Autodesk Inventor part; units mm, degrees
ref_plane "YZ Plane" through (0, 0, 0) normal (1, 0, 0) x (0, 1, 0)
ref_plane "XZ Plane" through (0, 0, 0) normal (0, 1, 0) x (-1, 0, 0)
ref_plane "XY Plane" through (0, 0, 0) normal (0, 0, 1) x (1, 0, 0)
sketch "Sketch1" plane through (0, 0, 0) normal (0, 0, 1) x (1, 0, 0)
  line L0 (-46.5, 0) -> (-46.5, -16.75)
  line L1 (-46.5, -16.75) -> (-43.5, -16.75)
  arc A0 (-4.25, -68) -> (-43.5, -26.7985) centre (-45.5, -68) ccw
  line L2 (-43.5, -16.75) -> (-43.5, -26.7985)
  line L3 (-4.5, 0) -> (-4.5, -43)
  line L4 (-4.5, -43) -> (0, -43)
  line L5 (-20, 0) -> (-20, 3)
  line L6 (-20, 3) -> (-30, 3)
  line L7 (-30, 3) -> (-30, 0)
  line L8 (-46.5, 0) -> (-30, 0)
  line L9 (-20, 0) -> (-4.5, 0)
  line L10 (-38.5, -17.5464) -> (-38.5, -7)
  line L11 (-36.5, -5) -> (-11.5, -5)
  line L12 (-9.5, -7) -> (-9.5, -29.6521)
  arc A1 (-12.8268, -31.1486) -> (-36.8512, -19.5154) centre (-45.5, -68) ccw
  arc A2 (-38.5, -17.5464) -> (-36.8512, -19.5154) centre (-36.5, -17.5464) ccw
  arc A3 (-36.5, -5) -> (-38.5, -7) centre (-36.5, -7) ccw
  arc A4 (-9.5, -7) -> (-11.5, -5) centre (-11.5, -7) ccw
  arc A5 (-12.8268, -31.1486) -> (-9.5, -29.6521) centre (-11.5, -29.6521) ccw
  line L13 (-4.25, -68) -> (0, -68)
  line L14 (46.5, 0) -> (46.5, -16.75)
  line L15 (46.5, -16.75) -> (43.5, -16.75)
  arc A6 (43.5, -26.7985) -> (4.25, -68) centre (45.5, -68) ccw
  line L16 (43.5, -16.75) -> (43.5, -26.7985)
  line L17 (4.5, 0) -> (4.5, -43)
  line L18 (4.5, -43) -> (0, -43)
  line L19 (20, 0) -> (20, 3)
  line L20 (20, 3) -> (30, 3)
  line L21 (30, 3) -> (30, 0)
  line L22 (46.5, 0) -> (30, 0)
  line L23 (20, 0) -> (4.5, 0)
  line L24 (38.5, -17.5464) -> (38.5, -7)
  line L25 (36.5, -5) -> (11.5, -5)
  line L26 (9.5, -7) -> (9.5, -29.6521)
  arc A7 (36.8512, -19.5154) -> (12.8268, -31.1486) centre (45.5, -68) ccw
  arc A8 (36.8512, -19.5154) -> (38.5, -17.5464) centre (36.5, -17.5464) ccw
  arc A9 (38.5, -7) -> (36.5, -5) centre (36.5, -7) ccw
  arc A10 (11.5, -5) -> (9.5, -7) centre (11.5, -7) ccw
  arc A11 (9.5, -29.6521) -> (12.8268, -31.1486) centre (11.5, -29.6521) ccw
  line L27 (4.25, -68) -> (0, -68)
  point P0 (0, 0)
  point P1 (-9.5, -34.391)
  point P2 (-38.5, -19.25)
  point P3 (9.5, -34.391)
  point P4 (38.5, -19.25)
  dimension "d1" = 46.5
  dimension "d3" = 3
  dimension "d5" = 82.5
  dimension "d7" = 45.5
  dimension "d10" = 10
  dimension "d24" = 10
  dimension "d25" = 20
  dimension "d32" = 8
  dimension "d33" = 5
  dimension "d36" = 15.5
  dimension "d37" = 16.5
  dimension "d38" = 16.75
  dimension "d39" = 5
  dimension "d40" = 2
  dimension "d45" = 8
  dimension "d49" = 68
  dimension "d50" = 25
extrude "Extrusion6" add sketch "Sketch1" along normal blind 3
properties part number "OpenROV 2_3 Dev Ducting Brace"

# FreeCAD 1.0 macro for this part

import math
import FreeCAD as App
import Part
import Sketcher

V = App.Vector

doc = App.newDocument("Part")
body = doc.addObject("PartDesign::Body", "Body")

sketch1 = body.newObject("Sketcher::SketchObject", "Sketch")
sketch1.AttachmentSupport = (doc.getObject("XY_Plane"), [""])
sketch1.MapMode = "FlatFace"
sketch1.addGeometry([
    Part.LineSegment(V(-30, 0, 0), V(-46.5, 0, 0)),
    Part.LineSegment(V(-46.5, 0, 0), V(-46.5, -16.8, 0)),
    Part.LineSegment(V(-46.5, -16.8, 0), V(-43.5, -16.8, 0)),
    Part.LineSegment(V(-43.5, -16.8, 0), V(-43.5, -26.8, 0)),
    Part.ArcOfCircle(Part.Circle(V(-45.5, -68, 0), V(0, 0, 1), 41.2), math.radians(0), math.radians(87)),
    Part.LineSegment(V(-4.2, -68, 0), V(4.2, -68, 0)),
    Part.ArcOfCircle(Part.Circle(V(45.5, -68, 0), V(0, 0, 1), 41.3), math.radians(93), math.radians(180)),
    Part.LineSegment(V(43.5, -26.8, 0), V(43.5, -16.8, 0)),
    Part.LineSegment(V(43.5, -16.8, 0), V(46.5, -16.8, 0)),
    Part.LineSegment(V(46.5, -16.8, 0), V(46.5, 0, 0)),
    Part.LineSegment(V(46.5, 0, 0), V(30, 0, 0)),
    Part.LineSegment(V(30, 0, 0), V(30, 3, 0)),
    Part.LineSegment(V(30, 3, 0), V(20, 3, 0)),
    Part.LineSegment(V(20, 3, 0), V(20, 0, 0)),
    Part.LineSegment(V(20, 0, 0), V(4.5, 0, 0)),
    Part.LineSegment(V(4.5, 0, 0), V(4.5, -43, 0)),
    Part.LineSegment(V(4.5, -43, 0), V(-4.5, -43, 0)),
    Part.LineSegment(V(-4.5, -43, 0), V(-4.5, 0, 0)),
    Part.LineSegment(V(-4.5, 0, 0), V(-20, 0, 0)),
    Part.LineSegment(V(-20, 0, 0), V(-20, 3, 0)),
    Part.LineSegment(V(-20, 3, 0), V(-30, 3, 0)),
    Part.LineSegment(V(-30, 3, 0), V(-30, 0, 0)),
    Part.ArcOfCircle(Part.Circle(V(-36.5, -17.5, 0), V(0, 0, 1), 2), math.radians(180), math.radians(260)),
    Part.LineSegment(V(-38.5, -17.5, 0), V(-38.5, -7, 0)),
    Part.ArcOfCircle(Part.Circle(V(-36.5, -7, 0), V(0, 0, 1), 2), math.radians(90), math.radians(180)),
    Part.LineSegment(V(-36.5, -5, 0), V(-11.5, -5, 0)),
    Part.ArcOfCircle(Part.Circle(V(-11.5, -7, 0), V(0, 0, 1), 2), math.radians(0), math.radians(90)),
    Part.LineSegment(V(-9.5, -7, 0), V(-9.5, -29.7, 0)),
    Part.ArcOfCircle(Part.Circle(V(-11.5, -29.7, 0), V(0, 0, 1), 2), math.radians(-132), math.radians(0)),
    Part.ArcOfCircle(Part.Circle(V(-45.5, -68, 0), V(0, 0, 1), 49.3), math.radians(48), math.radians(80)),
    Part.LineSegment(V(38.5, -7, 0), V(38.5, -17.5, 0)),
    Part.ArcOfCircle(Part.Circle(V(36.5, -17.5, 0), V(0, 0, 1), 2), math.radians(-80), math.radians(0)),
    Part.ArcOfCircle(Part.Circle(V(45.5, -68, 0), V(0, 0, 1), 49.2), math.radians(100), math.radians(132)),
    Part.ArcOfCircle(Part.Circle(V(11.5, -29.7, 0), V(0, 0, 1), 2), math.radians(180), math.radians(312)),
    Part.LineSegment(V(9.5, -29.7, 0), V(9.5, -7, 0)),
    Part.ArcOfCircle(Part.Circle(V(11.5, -7, 0), V(0, 0, 1), 2), math.radians(90), math.radians(180)),
    Part.LineSegment(V(11.5, -5, 0), V(36.5, -5, 0)),
    Part.ArcOfCircle(Part.Circle(V(36.5, -7, 0), V(0, 0, 1), 2), math.radians(0), math.radians(90)),
], False)
sketch1.addConstraint([
    Sketcher.Constraint("Coincident", 0, 2, 1, 1),
    Sketcher.Constraint("Coincident", 1, 2, 2, 1),
    Sketcher.Constraint("Coincident", 2, 2, 3, 1),
    Sketcher.Constraint("Coincident", 3, 2, 4, 2),
    Sketcher.Constraint("Coincident", 4, 1, 5, 1),
    Sketcher.Constraint("Coincident", 5, 2, 6, 2),
    Sketcher.Constraint("Coincident", 6, 1, 7, 1),
    Sketcher.Constraint("Coincident", 7, 2, 8, 1),
    Sketcher.Constraint("Coincident", 8, 2, 9, 1),
    Sketcher.Constraint("Coincident", 9, 2, 10, 1),
    Sketcher.Constraint("Coincident", 10, 2, 11, 1),
    Sketcher.Constraint("Coincident", 11, 2, 12, 1),
    Sketcher.Constraint("Coincident", 12, 2, 13, 1),
    Sketcher.Constraint("Coincident", 13, 2, 14, 1),
    Sketcher.Constraint("Coincident", 14, 2, 15, 1),
    Sketcher.Constraint("Coincident", 15, 2, 16, 1),
    Sketcher.Constraint("Coincident", 16, 2, 17, 1),
    Sketcher.Constraint("Coincident", 17, 2, 18, 1),
    Sketcher.Constraint("Coincident", 18, 2, 19, 1),
    Sketcher.Constraint("Coincident", 19, 2, 20, 1),
    Sketcher.Constraint("Coincident", 20, 2, 21, 1),
    Sketcher.Constraint("Coincident", 21, 2, 0, 1),
    Sketcher.Constraint("Tangent", 22, 1, 23, 1),
    Sketcher.Constraint("Tangent", 23, 2, 24, 2),
    Sketcher.Constraint("Tangent", 24, 1, 25, 1),
    Sketcher.Constraint("Tangent", 25, 2, 26, 2),
    Sketcher.Constraint("Tangent", 26, 1, 27, 1),
    Sketcher.Constraint("Tangent", 27, 2, 28, 2),
    Sketcher.Constraint("Tangent", 28, 1, 29, 1),
    Sketcher.Constraint("Tangent", 29, 2, 22, 2),
    Sketcher.Constraint("Tangent", 30, 2, 31, 2),
    Sketcher.Constraint("Tangent", 31, 1, 32, 1),
    Sketcher.Constraint("Tangent", 32, 2, 33, 2),
    Sketcher.Constraint("Tangent", 33, 1, 34, 1),
    Sketcher.Constraint("Tangent", 34, 2, 35, 2),
    Sketcher.Constraint("Tangent", 35, 1, 36, 1),
    Sketcher.Constraint("Tangent", 36, 2, 37, 2),
    Sketcher.Constraint("Tangent", 37, 1, 30, 1),
    Sketcher.Constraint("Horizontal", 0),
    Sketcher.Constraint("Vertical", 1),
    Sketcher.Constraint("Horizontal", 2),
    Sketcher.Constraint("Vertical", 3),
    Sketcher.Constraint("Horizontal", 5),
    Sketcher.Constraint("Vertical", 7),
    Sketcher.Constraint("Horizontal", 8),
    Sketcher.Constraint("Vertical", 9),
    Sketcher.Constraint("Horizontal", 10),
    Sketcher.Constraint("Vertical", 11),
    Sketcher.Constraint("Horizontal", 12),
    Sketcher.Constraint("Vertical", 13),
    Sketcher.Constraint("Horizontal", 14),
    Sketcher.Constraint("Vertical", 15),
    Sketcher.Constraint("Horizontal", 16),
    Sketcher.Constraint("Vertical", 17),
    Sketcher.Constraint("Horizontal", 18),
    Sketcher.Constraint("Vertical", 19),
    Sketcher.Constraint("Horizontal", 20),
    Sketcher.Constraint("Vertical", 21),
    Sketcher.Constraint("Vertical", 23),
    Sketcher.Constraint("Horizontal", 25),
    Sketcher.Constraint("Vertical", 27),
    Sketcher.Constraint("Vertical", 30),
    Sketcher.Constraint("Vertical", 34),
    Sketcher.Constraint("Horizontal", 36),
    Sketcher.Constraint("Coincident", 29, 3, 4, 3),
    Sketcher.Constraint("Coincident", 32, 3, 6, 3),
    Sketcher.Constraint("Equal", 4, 6),
    Sketcher.Constraint("Equal", 22, 24),
    Sketcher.Constraint("Equal", 24, 26),
    Sketcher.Constraint("Equal", 26, 28),
    Sketcher.Constraint("Equal", 28, 31),
    Sketcher.Constraint("Equal", 29, 32),
    Sketcher.Constraint("Equal", 31, 33),
    Sketcher.Constraint("Equal", 33, 35),
    Sketcher.Constraint("Equal", 35, 37),
    Sketcher.Constraint("Symmetric", 0, 2, 9, 2, -1, 1),
    Sketcher.Constraint("Symmetric", 14, 2, 17, 2, -1, 1),
    Sketcher.Constraint("Symmetric", 4, 3, 6, 3, -2),
    Sketcher.Constraint("Symmetric", 26, 3, 35, 3, -2),
    Sketcher.Constraint("Symmetric", 2, 2, 7, 2, -2),
    Sketcher.Constraint("Symmetric", 13, 2, 18, 2, -2),
    Sketcher.Constraint("Symmetric", 11, 2, 20, 2, -2),
    Sketcher.Constraint("PointOnObject", 0, 2, -1),
    Sketcher.Constraint("Horizontal", 22, 3, 31, 3),
    Sketcher.Constraint("Horizontal", 32, 3, 4, 1),
    Sketcher.Constraint("Equal", 8, 11),
    Sketcher.Constraint("Radius", 22, 2.0),
    Sketcher.Constraint("DistanceX", 2, 1, 2, 2, 3.0),
    Sketcher.Constraint("DistanceX", 12, 2, 12, 1, 10.0),
    Sketcher.Constraint("DistanceX", 25, 1, 25, 2, 25.0),
    Sketcher.Constraint("Radius", 4, 41.25),
    Sketcher.Constraint("DistanceX", 0, 2, 0, 1, 16.5),
    Sketcher.Constraint("DistanceX", 14, 2, 14, 1, 15.5),
    Sketcher.Constraint("DistanceY", 4, 3, -1, 1, 68.0),
    Sketcher.Constraint("DistanceX", -1, 1, 12, 2, 20.0),
    Sketcher.Constraint("DistanceY", 24, 1, -1, 1, 5.0),
    Sketcher.Constraint("DistanceX", 0, 2, 24, 3, 10.0),
    Sketcher.Constraint("DistanceX", 6, 1, 6, 3, 2.0),
    Sketcher.Constraint("DistanceY", 5, 2, 15, 2, 25.0),
    Sketcher.Constraint("DistanceY", 1, 2, 1, 1, 16.75),
    Sketcher.Constraint("Radius", 29, 49.25),
])
pad1 = body.newObject("PartDesign::Pad", "Pad")
pad1.Profile = sketch1
pad1.Length = 3

doc.recompute()
